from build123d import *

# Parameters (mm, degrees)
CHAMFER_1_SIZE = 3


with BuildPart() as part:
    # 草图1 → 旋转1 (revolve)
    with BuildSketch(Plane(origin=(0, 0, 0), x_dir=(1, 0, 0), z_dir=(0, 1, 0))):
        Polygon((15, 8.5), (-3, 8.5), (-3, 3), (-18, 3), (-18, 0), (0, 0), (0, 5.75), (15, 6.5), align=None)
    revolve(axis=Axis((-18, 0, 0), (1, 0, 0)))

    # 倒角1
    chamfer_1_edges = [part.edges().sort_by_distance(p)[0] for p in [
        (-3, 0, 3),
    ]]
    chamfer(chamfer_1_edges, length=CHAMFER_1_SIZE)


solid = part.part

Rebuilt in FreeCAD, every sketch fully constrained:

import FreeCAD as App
import Part
import Sketcher

V = App.Vector


def edges_at(feature, points):
    """Names of the edges that pass closest to the given points."""
    edges = feature.Shape.Edges
    near = lambda p: min(range(len(edges)), key=lambda i: edges[i].distToShape(Part.Vertex(*p))[0])
    return sorted({f"Edge{near(p) + 1}" for p in points})

doc = App.newDocument("Part")
body = doc.addObject("PartDesign::Body", "Body")

# Sketch on XZ plane
sketch1 = body.newObject("Sketcher::SketchObject", "Sketch")
sketch1.AttachmentSupport = (doc.getObject("XZ_Plane"), [""])
sketch1.MapMode = "FlatFace"
sketch1.addGeometry([
    Part.LineSegment(V(15, -8.5, 0), V(-3, -8.5, 0)),  # 0
    Part.LineSegment(V(-3, -8.5, 0), V(-3, -3, 0)),  # 1
    Part.LineSegment(V(-3, -3, 0), V(-18, -3, 0)),  # 2
    Part.LineSegment(V(-18, -3, 0), V(-18, 0, 0)),  # 3
    Part.LineSegment(V(-18, 0, 0), V(0, 0, 0)),  # 4
    Part.LineSegment(V(0, 0, 0), V(0, -5.8, 0)),  # 5
    Part.LineSegment(V(0, -5.8, 0), V(15, -6.5, 0)),  # 6
    Part.LineSegment(V(15, -6.5, 0), V(15, -8.5, 0)),  # 7
], False)
sketch1.addConstraint([
    Sketcher.Constraint("Coincident", 0, 2, 1, 1),
    Sketcher.Constraint("Coincident", 1, 2, 2, 1),
    Sketcher.Constraint("Coincident", 2, 2, 3, 1),
    Sketcher.Constraint("Coincident", 3, 2, 4, 1),
    Sketcher.Constraint("Coincident", 4, 2, 5, 1),
    Sketcher.Constraint("Coincident", 5, 2, 6, 1),
    Sketcher.Constraint("Coincident", 6, 2, 7, 1),
    Sketcher.Constraint("Coincident", 7, 2, 0, 1),
    Sketcher.Constraint("Horizontal", 0),
    Sketcher.Constraint("Vertical", 1),
    Sketcher.Constraint("Horizontal", 2),
    Sketcher.Constraint("Vertical", 3),
    Sketcher.Constraint("Horizontal", 4),
    Sketcher.Constraint("Vertical", 5),
    Sketcher.Constraint("Vertical", 7),
    Sketcher.Constraint("Coincident", 4, 2, -1, 1),
    Sketcher.Constraint("Equal", 0, 4),
    Sketcher.Constraint("DistanceX", 0, 2, 0, 1, 18.0),
    Sketcher.Constraint("DistanceX", 2, 2, 2, 1, 15.0),
    Sketcher.Constraint("DistanceY", 3, 1, 3, 2, 3.0),
    Sketcher.Constraint("DistanceY", 7, 2, 7, 1, 2.0),
    Sketcher.Constraint("DistanceY", 1, 1, 1, 2, 5.5),
    Sketcher.Constraint("DistanceY", 5, 2, 5, 1, 5.75),
])
revolution = body.newObject("PartDesign::Revolution", "Revolution")
revolution.Profile = sketch1
revolution.ReferenceAxis = (sketch1, ["H_Axis"])
revolution.Angle = 360
doc.recompute()

chamfer = body.newObject("PartDesign::Chamfer", "Chamfer")
chamfer.Base = (revolution, edges_at(revolution, [(-3, 0, 3)]))
chamfer.Size = 3

doc.recompute()
